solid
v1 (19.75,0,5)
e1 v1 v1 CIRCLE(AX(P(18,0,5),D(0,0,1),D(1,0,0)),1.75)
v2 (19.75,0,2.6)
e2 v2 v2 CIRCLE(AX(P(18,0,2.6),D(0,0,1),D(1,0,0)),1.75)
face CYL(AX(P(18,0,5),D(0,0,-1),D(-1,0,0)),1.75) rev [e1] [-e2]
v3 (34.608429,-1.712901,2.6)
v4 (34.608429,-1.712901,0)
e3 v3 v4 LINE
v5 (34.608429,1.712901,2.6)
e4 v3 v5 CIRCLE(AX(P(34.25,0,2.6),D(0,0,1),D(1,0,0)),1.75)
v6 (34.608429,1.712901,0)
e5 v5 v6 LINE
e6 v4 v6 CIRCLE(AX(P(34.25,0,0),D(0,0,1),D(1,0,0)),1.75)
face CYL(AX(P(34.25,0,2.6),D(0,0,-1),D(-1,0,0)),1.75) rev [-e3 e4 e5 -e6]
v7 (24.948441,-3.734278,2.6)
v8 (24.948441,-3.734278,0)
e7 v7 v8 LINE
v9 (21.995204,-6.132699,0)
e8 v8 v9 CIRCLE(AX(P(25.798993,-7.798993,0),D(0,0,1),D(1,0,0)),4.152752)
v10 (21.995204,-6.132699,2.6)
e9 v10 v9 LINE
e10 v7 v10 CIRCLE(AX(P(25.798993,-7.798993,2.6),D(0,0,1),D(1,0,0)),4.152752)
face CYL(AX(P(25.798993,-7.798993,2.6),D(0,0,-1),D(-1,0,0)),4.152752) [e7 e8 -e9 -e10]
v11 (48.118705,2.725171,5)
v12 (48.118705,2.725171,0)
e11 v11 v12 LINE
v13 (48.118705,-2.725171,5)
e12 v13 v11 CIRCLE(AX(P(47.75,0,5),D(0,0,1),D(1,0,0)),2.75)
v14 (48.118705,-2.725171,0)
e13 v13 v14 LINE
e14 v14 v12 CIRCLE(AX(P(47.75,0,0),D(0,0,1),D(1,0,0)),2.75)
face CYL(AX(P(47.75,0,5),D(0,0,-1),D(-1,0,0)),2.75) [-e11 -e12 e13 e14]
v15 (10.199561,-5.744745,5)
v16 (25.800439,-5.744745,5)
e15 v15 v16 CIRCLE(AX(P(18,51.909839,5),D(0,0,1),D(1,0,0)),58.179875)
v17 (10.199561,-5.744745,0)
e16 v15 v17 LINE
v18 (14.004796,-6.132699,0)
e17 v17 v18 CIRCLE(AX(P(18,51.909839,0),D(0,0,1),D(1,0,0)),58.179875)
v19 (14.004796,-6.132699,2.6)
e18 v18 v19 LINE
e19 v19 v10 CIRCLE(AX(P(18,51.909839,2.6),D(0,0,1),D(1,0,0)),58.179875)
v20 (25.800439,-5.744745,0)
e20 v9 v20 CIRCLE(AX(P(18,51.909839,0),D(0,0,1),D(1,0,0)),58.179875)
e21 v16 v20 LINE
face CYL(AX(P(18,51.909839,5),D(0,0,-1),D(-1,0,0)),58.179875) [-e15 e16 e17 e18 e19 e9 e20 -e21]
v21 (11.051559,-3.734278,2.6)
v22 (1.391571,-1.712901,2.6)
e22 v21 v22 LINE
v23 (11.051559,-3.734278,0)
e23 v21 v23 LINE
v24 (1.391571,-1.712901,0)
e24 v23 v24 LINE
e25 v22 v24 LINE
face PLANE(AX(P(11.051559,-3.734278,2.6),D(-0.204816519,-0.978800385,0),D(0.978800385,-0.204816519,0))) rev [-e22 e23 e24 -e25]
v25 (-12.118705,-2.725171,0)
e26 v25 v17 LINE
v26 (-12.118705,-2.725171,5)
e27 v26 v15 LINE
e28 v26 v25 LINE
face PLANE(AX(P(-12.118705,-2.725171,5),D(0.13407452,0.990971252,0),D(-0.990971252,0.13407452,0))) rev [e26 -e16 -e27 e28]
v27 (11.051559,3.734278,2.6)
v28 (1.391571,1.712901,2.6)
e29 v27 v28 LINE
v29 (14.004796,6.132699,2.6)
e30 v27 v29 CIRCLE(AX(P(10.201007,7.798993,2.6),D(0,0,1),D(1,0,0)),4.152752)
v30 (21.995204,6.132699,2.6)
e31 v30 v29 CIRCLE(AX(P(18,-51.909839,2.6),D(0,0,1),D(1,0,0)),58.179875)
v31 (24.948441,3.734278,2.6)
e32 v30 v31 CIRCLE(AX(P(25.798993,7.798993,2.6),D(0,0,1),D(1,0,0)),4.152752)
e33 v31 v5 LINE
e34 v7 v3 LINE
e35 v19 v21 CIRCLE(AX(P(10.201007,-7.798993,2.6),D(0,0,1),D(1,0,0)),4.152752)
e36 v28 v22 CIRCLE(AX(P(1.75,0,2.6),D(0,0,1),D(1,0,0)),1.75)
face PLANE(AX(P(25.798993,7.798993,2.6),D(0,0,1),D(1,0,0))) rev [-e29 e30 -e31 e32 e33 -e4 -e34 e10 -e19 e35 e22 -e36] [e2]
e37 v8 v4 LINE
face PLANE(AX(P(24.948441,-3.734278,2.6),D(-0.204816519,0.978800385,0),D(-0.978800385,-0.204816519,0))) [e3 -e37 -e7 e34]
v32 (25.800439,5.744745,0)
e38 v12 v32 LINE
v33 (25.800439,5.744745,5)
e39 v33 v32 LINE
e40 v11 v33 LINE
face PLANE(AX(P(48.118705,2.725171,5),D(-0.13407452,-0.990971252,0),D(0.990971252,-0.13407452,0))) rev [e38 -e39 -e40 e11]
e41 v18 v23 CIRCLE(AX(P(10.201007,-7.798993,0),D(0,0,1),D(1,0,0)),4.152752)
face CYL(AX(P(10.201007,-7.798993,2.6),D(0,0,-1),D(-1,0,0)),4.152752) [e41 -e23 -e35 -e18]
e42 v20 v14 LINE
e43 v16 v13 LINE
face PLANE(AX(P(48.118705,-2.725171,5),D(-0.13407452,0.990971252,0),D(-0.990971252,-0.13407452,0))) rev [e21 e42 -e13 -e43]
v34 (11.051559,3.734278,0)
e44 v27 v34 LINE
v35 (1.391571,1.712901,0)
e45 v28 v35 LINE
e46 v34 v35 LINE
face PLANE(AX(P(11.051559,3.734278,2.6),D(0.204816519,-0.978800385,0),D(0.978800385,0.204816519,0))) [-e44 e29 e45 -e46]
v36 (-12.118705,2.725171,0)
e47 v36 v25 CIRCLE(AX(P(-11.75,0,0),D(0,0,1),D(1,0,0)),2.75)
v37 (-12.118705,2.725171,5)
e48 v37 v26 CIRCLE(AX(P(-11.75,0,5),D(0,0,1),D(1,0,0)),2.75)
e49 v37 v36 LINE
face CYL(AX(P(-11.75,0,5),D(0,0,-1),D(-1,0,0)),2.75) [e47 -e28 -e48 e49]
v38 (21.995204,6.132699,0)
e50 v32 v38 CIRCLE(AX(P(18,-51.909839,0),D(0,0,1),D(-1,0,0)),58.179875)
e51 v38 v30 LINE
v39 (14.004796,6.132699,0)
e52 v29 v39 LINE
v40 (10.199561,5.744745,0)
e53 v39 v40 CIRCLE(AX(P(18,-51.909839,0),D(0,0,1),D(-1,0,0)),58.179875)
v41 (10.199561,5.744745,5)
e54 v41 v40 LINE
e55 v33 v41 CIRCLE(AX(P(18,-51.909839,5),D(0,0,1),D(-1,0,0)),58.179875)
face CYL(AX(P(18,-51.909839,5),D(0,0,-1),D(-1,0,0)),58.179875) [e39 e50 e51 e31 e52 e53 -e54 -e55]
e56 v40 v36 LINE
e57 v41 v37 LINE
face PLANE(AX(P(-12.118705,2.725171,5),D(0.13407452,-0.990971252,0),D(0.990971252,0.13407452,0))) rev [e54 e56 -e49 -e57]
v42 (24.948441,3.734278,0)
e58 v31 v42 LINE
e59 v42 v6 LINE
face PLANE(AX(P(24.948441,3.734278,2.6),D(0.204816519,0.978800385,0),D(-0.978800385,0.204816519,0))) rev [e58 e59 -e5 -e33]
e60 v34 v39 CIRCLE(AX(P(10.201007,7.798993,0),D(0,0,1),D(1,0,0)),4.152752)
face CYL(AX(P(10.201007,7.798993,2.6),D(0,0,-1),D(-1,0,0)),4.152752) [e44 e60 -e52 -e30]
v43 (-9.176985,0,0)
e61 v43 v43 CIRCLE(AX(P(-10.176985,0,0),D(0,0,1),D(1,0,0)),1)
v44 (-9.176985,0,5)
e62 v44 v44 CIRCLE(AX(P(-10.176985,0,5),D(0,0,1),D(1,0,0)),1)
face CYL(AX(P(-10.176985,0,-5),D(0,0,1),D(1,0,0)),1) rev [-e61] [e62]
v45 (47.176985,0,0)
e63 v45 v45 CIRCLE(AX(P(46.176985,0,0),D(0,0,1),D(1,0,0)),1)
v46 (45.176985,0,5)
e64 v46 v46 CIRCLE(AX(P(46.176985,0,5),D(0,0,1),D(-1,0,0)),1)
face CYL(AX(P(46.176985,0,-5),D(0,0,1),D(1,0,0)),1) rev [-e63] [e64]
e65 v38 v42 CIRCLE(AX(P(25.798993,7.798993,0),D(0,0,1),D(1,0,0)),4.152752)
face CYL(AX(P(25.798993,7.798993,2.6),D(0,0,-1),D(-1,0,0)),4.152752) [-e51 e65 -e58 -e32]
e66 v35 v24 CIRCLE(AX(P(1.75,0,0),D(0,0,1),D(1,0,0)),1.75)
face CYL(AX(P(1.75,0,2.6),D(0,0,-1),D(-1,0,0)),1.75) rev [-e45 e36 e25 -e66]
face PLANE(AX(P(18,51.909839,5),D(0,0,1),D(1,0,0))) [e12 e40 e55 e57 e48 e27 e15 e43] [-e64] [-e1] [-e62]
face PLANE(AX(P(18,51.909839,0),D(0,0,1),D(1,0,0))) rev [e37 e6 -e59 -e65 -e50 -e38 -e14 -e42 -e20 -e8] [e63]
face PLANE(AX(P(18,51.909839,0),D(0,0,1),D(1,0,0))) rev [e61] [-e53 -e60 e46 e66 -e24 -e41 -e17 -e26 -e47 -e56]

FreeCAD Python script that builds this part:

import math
import FreeCAD as App
import Part
import Sketcher

V = App.Vector
Q = App.Units.Quantity

doc = App.newDocument("Part")
params = doc.addObject("Spreadsheet::Sheet", "Params")
for row, (alias, value) in enumerate([
    ("sketch1_diameter", "3.5 mm"),
    ("sketch1_radius", "2.75 mm"),
    ("pad1_length", "5 mm"),
    ("sketch2_diameter", "3.5 mm"),
    ("pocket1_length", "2.6 mm"),
    ("sketch3_diameter", "2 mm"),
    ("pocket2_length", "10 mm"),
], start=1):
    params.set(f"A{row}", alias)
    params.set(f"B{row}", "=" + value)
    params.setAlias(f"B{row}", alias)

body = doc.addObject("PartDesign::Body", "Body")

# Sketch on XY plane
sketch1 = doc.addObject("Sketcher::SketchObject", "Sketch")
body.addObject(sketch1)
sketch1.AttachmentSupport = (doc.XY_Plane, [""])
sketch1.MapMode = "FlatFace"
sketch1.addGeometry([
    Part.LineSegment(V(-12.1, -2.7, 0), V(10.2, -5.7, 0)),  # 0
    Part.ArcOfCircle(Part.Circle(V(18, 51.9, 0), V(0, 0, 1), 58.2), math.radians(-97.71), math.radians(-82.29)),  # 1
    Part.LineSegment(V(25.8, -5.7, 0), V(48.1, -2.7, 0)),  # 2
    Part.ArcOfCircle(Part.Circle(V(47.8, 0, 0), V(0, 0, 1), 2.8), math.radians(-82), math.radians(82)),  # 3
    Part.LineSegment(V(48.1, 2.7, 0), V(25.8, 5.7, 0)),  # 4
    Part.ArcOfCircle(Part.Circle(V(18, -51.9, 0), V(0, 0, 1), 58.2), math.radians(82.29), math.radians(97.71)),  # 5
    Part.LineSegment(V(10.2, 5.7, 0), V(-12.1, 2.7, 0)),  # 6
    Part.ArcOfCircle(Part.Circle(V(-11.8, 0, 0), V(0, 0, 1), 2.8), math.radians(98), math.radians(262)),  # 7
    Part.Circle(V(18, 0, 0), V(0, 0, 1), 1.8),  # 8
], False)
sketch1.addConstraint([
    Sketcher.Constraint("Tangent", 0, 2, 1, 1),
    Sketcher.Constraint("Tangent", 1, 2, 2, 1),
    Sketcher.Constraint("Tangent", 2, 2, 3, 1),
    Sketcher.Constraint("Tangent", 3, 2, 4, 1),
    Sketcher.Constraint("Tangent", 4, 2, 5, 1),
    Sketcher.Constraint("Tangent", 5, 2, 6, 1),
    Sketcher.Constraint("Tangent", 6, 2, 7, 1),
    Sketcher.Constraint("Tangent", 7, 2, 0, 1),
    Sketcher.Constraint("Equal", 1, 5),
    Sketcher.Constraint("Equal", 3, 7),
    Sketcher.Constraint("Symmetric", 1, 3, 5, 3, -1),
    Sketcher.Constraint("PointOnObject", 3, 3, -1),
    Sketcher.Constraint("PointOnObject", 7, 3, -1),
    Sketcher.Constraint("PointOnObject", 8, 3, -1),
    Sketcher.Constraint("Parallel", 0, 4),
    Sketcher.Constraint("Vertical", 5, 3, 8, 3),
    Sketcher.Constraint("Diameter", 8, Q("3.5 mm")),
    Sketcher.Constraint("Radius", 3, Q("2.75 mm")),
    Sketcher.Constraint("DistanceX", -1, 1, 1, 3, Q("18 mm")),
    Sketcher.Constraint("DistanceX", 7, 3, 3, 3, Q("59.5 mm")),
    Sketcher.Constraint("Radius", 1, Q("58.179875 mm")),
    Sketcher.Constraint("Distance", 0, Q("22.521608 mm")),
])
sketch1.setExpression("Constraints[16]", "Params.sketch1_diameter")
sketch1.setExpression("Constraints[17]", "Params.sketch1_radius")
pad1 = doc.addObject("PartDesign::Pad", "Pad")
body.addObject(pad1)
pad1.Profile = sketch1
pad1.setExpression("Length", "Params.pad1_length")

# Sketch on XY plane
sketch2 = doc.addObject("Sketcher::SketchObject", "Sketch001")
body.addObject(sketch2)
sketch2.AttachmentSupport = (doc.XY_Plane, [""])
sketch2.MapMode = "FlatFace"
sketch2.addGeometry([
    Part.LineSegment(V(34.6, 1.7, 0), V(24.9, 3.7, 0)),  # 0
    Part.ArcOfCircle(Part.Circle(V(25.8, 7.8, 0), V(0, 0, 1), 4.2), math.radians(-168), math.radians(-102)),  # 1
    Part.LineSegment(V(21.7, 6.9, 0), V(19.7, 16.6, 0)),  # 2
    Part.ArcOfCircle(Part.Circle(V(18, 16.2, 0), V(0, 0, 1), 1.8), math.radians(12), math.radians(168)),  # 3
    Part.LineSegment(V(16.3, 16.6, 0), V(14.3, 6.9, 0)),  # 4
    Part.ArcOfCircle(Part.Circle(V(10.2, 7.8, 0), V(0, 0, 1), 4.2), math.radians(-78), math.radians(-12)),  # 5
    Part.LineSegment(V(11.1, 3.7, 0), V(1.4, 1.7, 0)),  # 6
    Part.ArcOfCircle(Part.Circle(V(1.8, 0, 0), V(0, 0, 1), 1.8), math.radians(102), math.radians(258)),  # 7
    Part.LineSegment(V(1.4, -1.7, 0), V(11.1, -3.7, 0)),  # 8
    Part.ArcOfCircle(Part.Circle(V(10.2, -7.8, 0), V(0, 0, 1), 4.2), math.radians(12), math.radians(78)),  # 9
    Part.LineSegment(V(14.3, -6.9, 0), V(16.3, -16.6, 0)),  # 10
    Part.ArcOfCircle(Part.Circle(V(18, -16.2, 0), V(0, 0, 1), 1.8), math.radians(-168), math.radians(-12)),  # 11
    Part.LineSegment(V(19.7, -16.6, 0), V(21.7, -6.9, 0)),  # 12
    Part.ArcOfCircle(Part.Circle(V(25.8, -7.8, 0), V(0, 0, 1), 4.2), math.radians(102), math.radians(168)),  # 13
    Part.LineSegment(V(24.9, -3.7, 0), V(34.6, -1.7, 0)),  # 14
    Part.ArcOfCircle(Part.Circle(V(34.2, 0, 0), V(0, 0, 1), 1.8), math.radians(-78), math.radians(78)),  # 15
    Part.Circle(V(18, 0, 0), V(0, 0, 1), 1.8),  # 16
], False)
sketch2.addConstraint([
    Sketcher.Constraint("Tangent", 0, 2, 1, 2),
    Sketcher.Constraint("Tangent", 1, 1, 2, 1),
    Sketcher.Constraint("Tangent", 2, 2, 3, 1),
    Sketcher.Constraint("Tangent", 3, 2, 4, 1),
    Sketcher.Constraint("Tangent", 4, 2, 5, 2),
    Sketcher.Constraint("Tangent", 5, 1, 6, 1),
    Sketcher.Constraint("Tangent", 6, 2, 7, 1),
    Sketcher.Constraint("Tangent", 7, 2, 8, 1),
    Sketcher.Constraint("Tangent", 8, 2, 9, 2),
    Sketcher.Constraint("Tangent", 9, 1, 10, 1),
    Sketcher.Constraint("Tangent", 10, 2, 11, 1),
    Sketcher.Constraint("Tangent", 11, 2, 12, 1),
    Sketcher.Constraint("Tangent", 12, 2, 13, 2),
    Sketcher.Constraint("Tangent", 13, 1, 14, 1),
    Sketcher.Constraint("Tangent", 14, 2, 15, 1),
    Sketcher.Constraint("Tangent", 15, 2, 0, 1),
    Sketcher.Constraint("Equal", 1, 5),
    Sketcher.Constraint("Equal", 3, 7),
    Sketcher.Constraint("Equal", 5, 9),
    Sketcher.Constraint("Equal", 7, 11),
    Sketcher.Constraint("Equal", 9, 13),
    Sketcher.Constraint("Equal", 11, 15),
    Sketcher.Constraint("Equal", 15, 16),
    Sketcher.Constraint("Symmetric", 5, 3, 9, 3, -1),
    Sketcher.Constraint("Symmetric", 3, 3, 11, 3, -1),
    Sketcher.Constraint("Symmetric", 1, 3, 13, 3, -1),
    Sketcher.Constraint("PointOnObject", 7, 3, -1),
    Sketcher.Constraint("PointOnObject", 15, 3, -1),
    Sketcher.Constraint("PointOnObject", 16, 3, -1),
    Sketcher.Constraint("Perpendicular", 0, 4),
    Sketcher.Constraint("Perpendicular", 2, 6),
    Sketcher.Constraint("Perpendicular", 4, 8),
    Sketcher.Constraint("Horizontal", 1, 3, 5, 3),
    Sketcher.Constraint("Vertical", 11, 3, 16, 3),
    Sketcher.Constraint("Equal", 0, 2),
    Sketcher.Constraint("Diameter", 16, Q("3.5 mm")),
    Sketcher.Constraint("DistanceX", -1, 1, 3, 3, Q("18 mm")),
    Sketcher.Constraint("DistanceY", 11, 3, 3, 3, Q("32.5 mm")),
    Sketcher.Constraint("Radius", 1, Q("4.152752 mm")),
    Sketcher.Constraint("DistanceX", -1, 1, 2, 2, Q("19.712901 mm")),
])
sketch2.setExpression("Constraints[35]", "Params.sketch2_diameter")
pocket1 = doc.addObject("PartDesign::Pocket", "Pocket")
body.addObject(pocket1)
pocket1.Profile = sketch2
pocket1.setExpression("Length", "Params.pocket1_length")
pocket1.Reversed = True

# Sketch on XY plane
sketch3 = doc.addObject("Sketcher::SketchObject", "Sketch002")
body.addObject(sketch3)
sketch3.AttachmentSupport = (doc.XY_Plane, [""])
sketch3.MapMode = "FlatFace"
sketch3.AttachmentOffset = App.Placement(V(0, 0, 5), App.Rotation())
sketch3.addGeometry([
    Part.Circle(V(-10.2, 0, 0), V(0, 0, 1), 1),
    Part.Circle(V(46.2, 0, 0), V(0, 0, 1), 1),
], False)
sketch3.addConstraint([
    Sketcher.Constraint("Equal", 0, 1),
    Sketcher.Constraint("PointOnObject", 0, 3, -1),
    Sketcher.Constraint("PointOnObject", 1, 3, -1),
    Sketcher.Constraint("Diameter", 0, Q("2 mm")),
    Sketcher.Constraint("DistanceX", 0, 3, 1, 3, Q("56.353969 mm")),
    Sketcher.Constraint("DistanceX", 0, 3, -1, 1, Q("10.176985 mm")),
])
sketch3.setExpression("Constraints[3]", "Params.sketch3_diameter")
pocket2 = doc.addObject("PartDesign::Pocket", "Pocket001")
body.addObject(pocket2)
pocket2.Profile = sketch3
pocket2.setExpression("Length", "Params.pocket2_length")

doc.recompute()
